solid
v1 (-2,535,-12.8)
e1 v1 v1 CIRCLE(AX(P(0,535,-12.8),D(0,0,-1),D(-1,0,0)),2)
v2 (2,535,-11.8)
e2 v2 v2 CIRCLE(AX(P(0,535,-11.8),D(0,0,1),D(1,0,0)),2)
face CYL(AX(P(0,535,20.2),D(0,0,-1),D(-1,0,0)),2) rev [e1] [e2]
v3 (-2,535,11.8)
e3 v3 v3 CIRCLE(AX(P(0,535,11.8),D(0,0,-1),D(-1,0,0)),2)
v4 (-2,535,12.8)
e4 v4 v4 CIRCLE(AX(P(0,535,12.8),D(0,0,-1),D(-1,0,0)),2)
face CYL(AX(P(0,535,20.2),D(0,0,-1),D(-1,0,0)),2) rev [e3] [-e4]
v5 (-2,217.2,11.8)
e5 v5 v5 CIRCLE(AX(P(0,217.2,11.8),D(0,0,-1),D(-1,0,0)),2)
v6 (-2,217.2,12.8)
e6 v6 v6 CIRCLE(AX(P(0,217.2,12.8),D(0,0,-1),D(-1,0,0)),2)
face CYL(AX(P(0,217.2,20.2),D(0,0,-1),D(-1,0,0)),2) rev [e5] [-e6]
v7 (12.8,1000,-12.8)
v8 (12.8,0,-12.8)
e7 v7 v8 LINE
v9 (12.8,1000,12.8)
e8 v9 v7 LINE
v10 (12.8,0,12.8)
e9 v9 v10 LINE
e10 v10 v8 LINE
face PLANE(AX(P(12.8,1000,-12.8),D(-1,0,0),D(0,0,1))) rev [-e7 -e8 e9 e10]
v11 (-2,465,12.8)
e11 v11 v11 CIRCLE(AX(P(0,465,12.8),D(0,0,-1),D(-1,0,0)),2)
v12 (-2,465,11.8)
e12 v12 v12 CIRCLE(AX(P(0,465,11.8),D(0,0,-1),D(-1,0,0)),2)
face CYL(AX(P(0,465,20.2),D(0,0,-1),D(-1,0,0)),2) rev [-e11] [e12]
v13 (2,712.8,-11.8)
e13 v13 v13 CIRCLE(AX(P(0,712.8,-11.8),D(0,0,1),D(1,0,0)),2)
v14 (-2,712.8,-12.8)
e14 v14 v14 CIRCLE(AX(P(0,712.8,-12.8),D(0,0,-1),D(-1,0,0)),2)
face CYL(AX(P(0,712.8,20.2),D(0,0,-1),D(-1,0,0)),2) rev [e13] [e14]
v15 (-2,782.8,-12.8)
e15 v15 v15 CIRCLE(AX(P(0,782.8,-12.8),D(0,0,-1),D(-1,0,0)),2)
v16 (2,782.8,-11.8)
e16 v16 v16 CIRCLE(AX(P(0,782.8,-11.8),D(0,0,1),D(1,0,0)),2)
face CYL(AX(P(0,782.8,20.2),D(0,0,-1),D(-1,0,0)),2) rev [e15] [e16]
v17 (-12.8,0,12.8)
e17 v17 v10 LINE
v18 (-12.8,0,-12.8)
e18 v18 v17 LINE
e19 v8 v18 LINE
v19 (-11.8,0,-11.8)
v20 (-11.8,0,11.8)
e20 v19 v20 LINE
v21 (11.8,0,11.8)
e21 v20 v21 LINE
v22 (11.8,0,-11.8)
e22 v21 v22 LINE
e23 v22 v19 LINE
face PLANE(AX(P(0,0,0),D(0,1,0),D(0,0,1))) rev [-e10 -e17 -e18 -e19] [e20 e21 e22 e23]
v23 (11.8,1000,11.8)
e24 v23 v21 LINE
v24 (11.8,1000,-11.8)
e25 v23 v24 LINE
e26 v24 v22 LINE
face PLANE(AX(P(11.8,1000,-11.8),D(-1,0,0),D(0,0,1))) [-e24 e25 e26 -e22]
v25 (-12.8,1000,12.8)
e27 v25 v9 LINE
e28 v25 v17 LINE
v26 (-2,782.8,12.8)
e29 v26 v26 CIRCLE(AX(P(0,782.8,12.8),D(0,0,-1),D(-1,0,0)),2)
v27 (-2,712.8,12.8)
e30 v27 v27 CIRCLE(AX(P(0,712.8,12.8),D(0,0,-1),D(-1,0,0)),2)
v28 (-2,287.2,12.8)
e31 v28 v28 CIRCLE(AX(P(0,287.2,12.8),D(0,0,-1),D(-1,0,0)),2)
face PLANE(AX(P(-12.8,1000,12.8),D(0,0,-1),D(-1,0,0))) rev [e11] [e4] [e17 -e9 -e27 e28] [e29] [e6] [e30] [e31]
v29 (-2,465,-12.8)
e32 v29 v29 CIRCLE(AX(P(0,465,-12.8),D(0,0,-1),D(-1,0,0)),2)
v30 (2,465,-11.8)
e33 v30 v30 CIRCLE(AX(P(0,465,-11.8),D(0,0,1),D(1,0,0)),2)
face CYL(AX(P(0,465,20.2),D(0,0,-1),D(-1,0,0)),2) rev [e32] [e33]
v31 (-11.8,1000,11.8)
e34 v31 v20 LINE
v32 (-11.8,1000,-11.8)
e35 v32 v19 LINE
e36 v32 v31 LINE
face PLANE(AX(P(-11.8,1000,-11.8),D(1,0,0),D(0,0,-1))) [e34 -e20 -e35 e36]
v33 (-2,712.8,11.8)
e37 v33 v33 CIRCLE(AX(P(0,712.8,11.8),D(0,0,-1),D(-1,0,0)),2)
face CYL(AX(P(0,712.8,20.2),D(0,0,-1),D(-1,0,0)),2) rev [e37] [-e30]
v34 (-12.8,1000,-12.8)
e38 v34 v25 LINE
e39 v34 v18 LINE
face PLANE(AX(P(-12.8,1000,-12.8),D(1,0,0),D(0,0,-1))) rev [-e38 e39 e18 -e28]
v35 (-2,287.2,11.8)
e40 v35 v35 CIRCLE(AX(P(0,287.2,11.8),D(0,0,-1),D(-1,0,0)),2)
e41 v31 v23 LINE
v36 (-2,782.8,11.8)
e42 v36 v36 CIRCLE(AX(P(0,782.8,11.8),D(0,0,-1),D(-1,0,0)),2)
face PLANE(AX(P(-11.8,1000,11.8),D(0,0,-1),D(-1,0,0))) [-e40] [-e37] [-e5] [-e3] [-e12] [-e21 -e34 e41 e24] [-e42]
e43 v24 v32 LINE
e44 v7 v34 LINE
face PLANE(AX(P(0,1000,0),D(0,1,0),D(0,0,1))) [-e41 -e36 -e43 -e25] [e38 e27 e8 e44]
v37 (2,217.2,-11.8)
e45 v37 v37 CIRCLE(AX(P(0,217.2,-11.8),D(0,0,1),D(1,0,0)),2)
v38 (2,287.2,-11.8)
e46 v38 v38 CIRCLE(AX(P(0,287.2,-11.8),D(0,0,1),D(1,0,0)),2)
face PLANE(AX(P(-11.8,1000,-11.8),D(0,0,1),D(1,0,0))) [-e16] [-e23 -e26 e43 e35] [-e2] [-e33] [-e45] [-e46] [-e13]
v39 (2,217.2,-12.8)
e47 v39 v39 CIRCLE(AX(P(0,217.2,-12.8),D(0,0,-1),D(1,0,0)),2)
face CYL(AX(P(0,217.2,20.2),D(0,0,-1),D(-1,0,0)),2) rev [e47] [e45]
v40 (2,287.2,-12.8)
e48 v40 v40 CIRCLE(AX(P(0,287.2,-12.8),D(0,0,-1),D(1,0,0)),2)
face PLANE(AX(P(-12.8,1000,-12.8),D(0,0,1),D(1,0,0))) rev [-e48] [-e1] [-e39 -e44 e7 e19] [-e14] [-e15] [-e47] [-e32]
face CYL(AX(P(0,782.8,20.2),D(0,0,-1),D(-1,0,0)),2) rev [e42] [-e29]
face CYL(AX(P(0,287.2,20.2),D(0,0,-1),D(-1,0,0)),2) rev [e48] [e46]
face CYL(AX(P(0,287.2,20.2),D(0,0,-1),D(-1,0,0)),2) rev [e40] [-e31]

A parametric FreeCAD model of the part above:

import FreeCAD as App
import Part
import Sketcher

V = App.Vector


def add_polygon(sketch, points):
    """Adds a closed chain of lines whose ends are joined by coincident constraints."""
    first, n = sketch.GeometryCount, len(points)
    for a, b in zip(points, points[1:] + points[:1]):
        sketch.addGeometry(Part.LineSegment(App.Vector(*a, 0), App.Vector(*b, 0)), False)
    for i in range(n):
        sketch.addConstraint(Sketcher.Constraint("Coincident", first + i, 2, first + (i + 1) % n, 1))

doc = App.newDocument("Part")
body = doc.addObject("PartDesign::Body", "Body")

# Sketch on XZ plane
sketch1 = body.newObject("Sketcher::SketchObject", "Sketch")
sketch1.AttachmentSupport = (doc.getObject("XZ_Plane"), [""])
sketch1.MapMode = "FlatFace"
add_polygon(sketch1, [(-13, -13), (-13, 13), (13, 13), (13, -13)])  # lines 0-3
add_polygon(sketch1, [(12, 12), (-12, 12), (-12, -12), (12, -12)])  # lines 4-7
sketch1.addConstraint([
    Sketcher.Constraint("Vertical", 0),
    Sketcher.Constraint("Horizontal", 1),
    Sketcher.Constraint("Vertical", 2),
    Sketcher.Constraint("Horizontal", 3),
    Sketcher.Constraint("Horizontal", 4),
    Sketcher.Constraint("Vertical", 5),
    Sketcher.Constraint("Horizontal", 6),
    Sketcher.Constraint("Vertical", 7),
    Sketcher.Constraint("Symmetric", 0, 2, 2, 2, -1, 1),
    Sketcher.Constraint("Symmetric", 4, 2, 6, 2, -1, 1),
    Sketcher.Constraint("Equal", 3, 0),
    Sketcher.Constraint("Equal", 6, 5),
    Sketcher.Constraint("DistanceX", 1, 1, 1, 2, 25.6),
    Sketcher.Constraint("DistanceX", 4, 2, 4, 1, 23.6),
])
pad1 = body.newObject("PartDesign::Pad", "Pad")
pad1.Profile = sketch1
pad1.Length = 1000
pad1.Reversed = True

# Sketch on XY plane
sketch2 = body.newObject("Sketcher::SketchObject", "Sketch001")
sketch2.AttachmentSupport = (doc.getObject("XY_Plane"), [""])
sketch2.MapMode = "FlatFace"
sketch2.AttachmentOffset = App.Placement(V(0, 0, -12.8), App.Rotation())
sketch2.addGeometry([
    Part.Circle(V(0, 535, 0), V(0, 0, 1), 2),  # 0
    Part.Circle(V(0, 465, 0), V(0, 0, 1), 2),  # 1
    Part.Circle(V(0, 782.8, 0), V(0, 0, 1), 2),  # 2
    Part.Circle(V(0, 712.8, 0), V(0, 0, 1), 2),  # 3
    Part.Circle(V(0, 287.2, 0), V(0, 0, 1), 2),  # 4
    Part.Circle(V(0, 217.2, 0), V(0, 0, 1), 2),  # 5
], False)
sketch2.addConstraint([
    Sketcher.Constraint("Equal", 0, 1),
    Sketcher.Constraint("Equal", 1, 2),
    Sketcher.Constraint("Equal", 2, 3),
    Sketcher.Constraint("Equal", 3, 4),
    Sketcher.Constraint("Equal", 4, 5),
    Sketcher.Constraint("PointOnObject", 0, 3, -2),
    Sketcher.Constraint("PointOnObject", 1, 3, -2),
    Sketcher.Constraint("PointOnObject", 2, 3, -2),
    Sketcher.Constraint("PointOnObject", 3, 3, -2),
    Sketcher.Constraint("PointOnObject", 4, 3, -2),
    Sketcher.Constraint("PointOnObject", 5, 3, -2),
    Sketcher.Constraint("Diameter", 0, 4.0),
    Sketcher.Constraint("DistanceY", -1, 1, 0, 3, 535.0),
    Sketcher.Constraint("DistanceY", -1, 1, 1, 3, 465.0),
    Sketcher.Constraint("DistanceY", 3, 3, 2, 3, 70.0),
    Sketcher.Constraint("DistanceY", 5, 3, 4, 3, 70.0),
    Sketcher.Constraint("DistanceY", -1, 1, 2, 3, 782.8),
    Sketcher.Constraint("DistanceY", -1, 1, 4, 3, 287.2),
])
pocket1 = body.newObject("PartDesign::Pocket", "Pocket")
pocket1.Profile = sketch2
pocket1.Length = 33
pocket1.Reversed = True

doc.recompute()
